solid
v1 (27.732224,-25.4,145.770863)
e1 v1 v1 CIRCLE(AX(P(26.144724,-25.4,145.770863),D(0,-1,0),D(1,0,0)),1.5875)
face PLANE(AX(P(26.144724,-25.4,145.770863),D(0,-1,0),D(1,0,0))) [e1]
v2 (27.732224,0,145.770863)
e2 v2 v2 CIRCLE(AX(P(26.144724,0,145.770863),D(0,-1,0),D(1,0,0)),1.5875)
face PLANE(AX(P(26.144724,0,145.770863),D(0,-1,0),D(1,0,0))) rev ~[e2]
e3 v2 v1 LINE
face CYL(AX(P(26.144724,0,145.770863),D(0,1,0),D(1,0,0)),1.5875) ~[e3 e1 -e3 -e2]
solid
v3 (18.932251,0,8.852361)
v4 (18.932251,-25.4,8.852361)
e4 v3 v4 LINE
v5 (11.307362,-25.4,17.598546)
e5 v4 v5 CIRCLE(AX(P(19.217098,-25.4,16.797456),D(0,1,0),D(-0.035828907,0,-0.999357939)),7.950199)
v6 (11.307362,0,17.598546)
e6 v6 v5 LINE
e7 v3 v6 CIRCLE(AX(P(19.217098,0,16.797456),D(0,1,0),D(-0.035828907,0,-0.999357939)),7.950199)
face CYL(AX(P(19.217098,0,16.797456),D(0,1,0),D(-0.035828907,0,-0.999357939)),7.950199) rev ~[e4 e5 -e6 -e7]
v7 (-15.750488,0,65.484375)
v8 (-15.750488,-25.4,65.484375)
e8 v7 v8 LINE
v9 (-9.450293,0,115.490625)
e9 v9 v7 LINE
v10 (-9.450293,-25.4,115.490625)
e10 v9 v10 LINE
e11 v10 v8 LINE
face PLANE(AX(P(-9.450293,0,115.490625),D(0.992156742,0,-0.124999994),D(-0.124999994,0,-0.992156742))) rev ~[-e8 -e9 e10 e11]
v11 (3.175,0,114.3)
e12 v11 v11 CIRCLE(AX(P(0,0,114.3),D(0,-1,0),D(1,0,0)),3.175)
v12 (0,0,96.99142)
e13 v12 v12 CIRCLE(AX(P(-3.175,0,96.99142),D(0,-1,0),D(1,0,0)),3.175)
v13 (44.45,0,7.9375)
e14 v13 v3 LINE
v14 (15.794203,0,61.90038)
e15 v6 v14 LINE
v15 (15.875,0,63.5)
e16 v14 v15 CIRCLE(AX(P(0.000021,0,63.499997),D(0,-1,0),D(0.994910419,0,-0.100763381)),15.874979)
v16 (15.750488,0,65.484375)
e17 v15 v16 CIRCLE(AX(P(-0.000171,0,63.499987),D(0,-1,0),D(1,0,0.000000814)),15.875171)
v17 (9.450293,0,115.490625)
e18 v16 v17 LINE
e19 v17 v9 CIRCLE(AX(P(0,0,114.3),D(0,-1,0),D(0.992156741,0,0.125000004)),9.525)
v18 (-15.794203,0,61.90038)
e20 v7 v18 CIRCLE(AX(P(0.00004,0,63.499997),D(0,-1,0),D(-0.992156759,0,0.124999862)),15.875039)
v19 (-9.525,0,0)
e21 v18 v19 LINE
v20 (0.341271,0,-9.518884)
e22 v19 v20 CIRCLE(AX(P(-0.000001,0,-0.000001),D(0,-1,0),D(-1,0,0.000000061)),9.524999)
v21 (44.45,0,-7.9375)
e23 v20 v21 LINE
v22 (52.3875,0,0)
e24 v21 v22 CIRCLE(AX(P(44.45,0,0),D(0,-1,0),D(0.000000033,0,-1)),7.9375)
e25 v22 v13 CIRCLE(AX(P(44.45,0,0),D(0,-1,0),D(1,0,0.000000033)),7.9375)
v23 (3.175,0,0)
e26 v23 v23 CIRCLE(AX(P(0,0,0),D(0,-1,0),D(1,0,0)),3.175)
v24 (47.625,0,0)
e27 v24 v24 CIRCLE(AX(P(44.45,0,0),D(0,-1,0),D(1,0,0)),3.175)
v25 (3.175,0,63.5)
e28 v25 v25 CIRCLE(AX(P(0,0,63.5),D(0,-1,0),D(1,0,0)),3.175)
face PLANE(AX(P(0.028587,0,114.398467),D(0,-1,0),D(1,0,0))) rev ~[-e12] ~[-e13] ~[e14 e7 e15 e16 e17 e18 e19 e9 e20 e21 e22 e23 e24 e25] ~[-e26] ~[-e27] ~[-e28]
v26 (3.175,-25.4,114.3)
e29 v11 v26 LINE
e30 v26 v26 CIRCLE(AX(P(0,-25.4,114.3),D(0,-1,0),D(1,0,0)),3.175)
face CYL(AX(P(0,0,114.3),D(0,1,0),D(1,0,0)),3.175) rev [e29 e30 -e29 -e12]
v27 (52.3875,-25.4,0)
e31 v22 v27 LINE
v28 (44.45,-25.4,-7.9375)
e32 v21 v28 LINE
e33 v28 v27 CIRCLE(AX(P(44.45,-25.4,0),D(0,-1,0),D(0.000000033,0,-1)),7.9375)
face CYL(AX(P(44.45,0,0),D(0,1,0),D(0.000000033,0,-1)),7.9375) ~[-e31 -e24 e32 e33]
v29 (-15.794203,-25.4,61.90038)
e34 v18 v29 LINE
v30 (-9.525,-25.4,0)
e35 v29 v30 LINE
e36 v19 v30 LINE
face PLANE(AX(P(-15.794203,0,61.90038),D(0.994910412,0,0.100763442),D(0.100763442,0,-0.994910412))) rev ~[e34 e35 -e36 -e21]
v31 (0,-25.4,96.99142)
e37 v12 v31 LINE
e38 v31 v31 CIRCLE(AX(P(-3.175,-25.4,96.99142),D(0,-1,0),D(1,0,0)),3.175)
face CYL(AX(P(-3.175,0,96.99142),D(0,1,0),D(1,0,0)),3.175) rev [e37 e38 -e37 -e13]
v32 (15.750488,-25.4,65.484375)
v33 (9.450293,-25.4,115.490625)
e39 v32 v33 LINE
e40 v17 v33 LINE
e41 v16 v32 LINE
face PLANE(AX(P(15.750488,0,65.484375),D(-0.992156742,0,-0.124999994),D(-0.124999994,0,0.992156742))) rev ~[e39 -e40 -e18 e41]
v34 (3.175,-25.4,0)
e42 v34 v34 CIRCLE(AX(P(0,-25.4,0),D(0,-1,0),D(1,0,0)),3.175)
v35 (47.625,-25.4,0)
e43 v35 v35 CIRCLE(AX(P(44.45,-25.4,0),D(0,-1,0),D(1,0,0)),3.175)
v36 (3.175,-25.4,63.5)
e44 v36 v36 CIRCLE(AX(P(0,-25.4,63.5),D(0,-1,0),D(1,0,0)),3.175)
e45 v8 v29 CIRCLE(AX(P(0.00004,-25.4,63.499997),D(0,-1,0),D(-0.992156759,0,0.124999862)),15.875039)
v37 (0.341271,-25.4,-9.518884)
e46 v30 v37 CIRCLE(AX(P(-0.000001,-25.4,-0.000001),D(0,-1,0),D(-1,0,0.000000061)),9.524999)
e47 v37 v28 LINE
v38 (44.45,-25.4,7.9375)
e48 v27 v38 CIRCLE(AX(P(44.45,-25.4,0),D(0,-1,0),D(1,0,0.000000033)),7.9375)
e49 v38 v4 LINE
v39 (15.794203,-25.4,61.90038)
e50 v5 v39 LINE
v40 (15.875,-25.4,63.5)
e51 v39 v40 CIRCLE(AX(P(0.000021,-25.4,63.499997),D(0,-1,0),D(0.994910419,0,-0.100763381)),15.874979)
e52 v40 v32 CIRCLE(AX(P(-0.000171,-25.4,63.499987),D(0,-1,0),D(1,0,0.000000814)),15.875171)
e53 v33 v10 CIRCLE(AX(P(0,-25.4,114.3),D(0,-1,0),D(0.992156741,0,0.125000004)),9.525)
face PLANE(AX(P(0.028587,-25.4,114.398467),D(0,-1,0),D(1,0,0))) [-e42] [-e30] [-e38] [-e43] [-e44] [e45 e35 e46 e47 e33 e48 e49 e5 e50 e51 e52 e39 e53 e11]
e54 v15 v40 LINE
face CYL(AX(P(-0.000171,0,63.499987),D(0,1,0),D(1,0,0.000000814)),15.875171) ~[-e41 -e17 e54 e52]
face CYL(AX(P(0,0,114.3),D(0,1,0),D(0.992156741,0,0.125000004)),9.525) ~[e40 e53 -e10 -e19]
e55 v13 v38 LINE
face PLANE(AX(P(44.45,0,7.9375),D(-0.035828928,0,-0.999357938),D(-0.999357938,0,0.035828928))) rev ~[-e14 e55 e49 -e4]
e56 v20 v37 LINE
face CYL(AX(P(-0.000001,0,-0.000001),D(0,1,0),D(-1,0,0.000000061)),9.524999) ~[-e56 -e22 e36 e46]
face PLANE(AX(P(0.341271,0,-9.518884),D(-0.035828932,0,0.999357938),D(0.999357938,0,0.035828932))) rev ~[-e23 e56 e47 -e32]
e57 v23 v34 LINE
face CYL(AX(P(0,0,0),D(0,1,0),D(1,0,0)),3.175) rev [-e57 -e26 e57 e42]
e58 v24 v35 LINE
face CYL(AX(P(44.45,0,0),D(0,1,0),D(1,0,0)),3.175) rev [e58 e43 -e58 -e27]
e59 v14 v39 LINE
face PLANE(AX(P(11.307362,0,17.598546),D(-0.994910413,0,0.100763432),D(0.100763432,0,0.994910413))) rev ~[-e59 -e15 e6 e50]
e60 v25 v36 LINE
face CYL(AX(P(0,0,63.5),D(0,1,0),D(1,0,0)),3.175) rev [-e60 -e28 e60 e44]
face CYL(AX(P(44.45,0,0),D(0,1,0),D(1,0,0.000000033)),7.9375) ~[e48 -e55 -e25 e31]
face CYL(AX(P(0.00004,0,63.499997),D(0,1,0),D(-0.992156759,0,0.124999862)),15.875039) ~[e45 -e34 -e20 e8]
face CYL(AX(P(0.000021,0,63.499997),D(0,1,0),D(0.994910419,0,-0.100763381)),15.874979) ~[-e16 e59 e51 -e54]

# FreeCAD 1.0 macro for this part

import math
import FreeCAD as App
import Part
import Sketcher
from FreeCAD import Vector
Q = App.Units.Quantity

doc = App.newDocument("Part")
body = doc.addObject("PartDesign::Body", "Body")
body.AllowCompound = True

# Sketch on XZ plane
sketch1 = body.newObject("Sketcher::SketchObject", "Sketch")
sketch1.AttachmentSupport = (doc.getObject("XZ_Plane"), [""])
sketch1.MapMode = "FlatFace"
sketch1.addGeometry([
    Part.ArcOfCircle(Part.Circle(Vector(0, 114.3, 0), Vector(0, 0, 1), 9.525), math.radians(7.180756), math.radians(172.819244)),  # 0
    Part.LineSegment(Vector(-9.450293, 115.490625, 0), Vector(-15.750488, 65.484375, 0)),  # 1
    Part.ArcOfCircle(Part.Circle(Vector(0.00004, 63.499997, 0), Vector(0, 0, 1), 15.875039), math.radians(172.819252), math.radians(185.783112)),  # 2
    Part.LineSegment(Vector(-15.794203, 61.90038, 0), Vector(-9.525, 0, 0)),  # 3
    Part.ArcOfCircle(Part.Circle(Vector(-0.000001, -0.000001, 0), Vector(0, 0, 1), 9.524999), math.radians(179.999996), math.radians(272.053294)),  # 4
    Part.LineSegment(Vector(0.341271, -9.518884, 0), Vector(44.45, -7.9375, 0)),  # 5
    Part.ArcOfCircle(Part.Circle(Vector(44.45, 0, 0), Vector(0, 0, 1), 7.9375), math.radians(-89.999998), math.radians(-0.000002)),  # 6
    Part.ArcOfCircle(Part.Circle(Vector(44.45, 0, 0), Vector(0, 0, 1), 7.9375), math.radians(0.000002), math.radians(89.999998)),  # 7
    Part.LineSegment(Vector(44.45, 7.9375, 0), Vector(18.932251, 8.852361, 0)),  # 8
    Part.ArcOfCircle(Part.Circle(Vector(19.217098, 16.797456, 0), Vector(0, 0, 1), 7.950199), math.radians(174.21686), math.radians(267.946715)),  # 9
    Part.LineSegment(Vector(11.307362, 17.598546, 0), Vector(15.794203, 61.90038, 0)),  # 10
    Part.ArcOfCircle(Part.Circle(Vector(0.000021, 63.499997, 0), Vector(0, 0, 1), 15.874979), math.radians(-5.783131), math.radians(0.000012)),  # 11
    Part.ArcOfCircle(Part.Circle(Vector(-0.000171, 63.499987, 0), Vector(0, 0, 1), 15.875171), math.radians(0.000047), math.radians(7.180725)),  # 12
    Part.LineSegment(Vector(15.750488, 65.484375, 0), Vector(9.450293, 115.490625, 0)),  # 13
    Part.Circle(Vector(0, 0, 0), Vector(0, 0, 1), 3.175),  # 14
    Part.Circle(Vector(44.45, 0, 0), Vector(0, 0, 1), 3.175),  # 15
    Part.Circle(Vector(0, 63.5, 0), Vector(0, 0, 1), 3.175),  # 16
    Part.Circle(Vector(-3.175, 96.99142, 0), Vector(0, 0, 1), 3.175),  # 17
    Part.Circle(Vector(0, 114.3, 0), Vector(0, 0, 1), 3.175),  # 18
    Part.Circle(Vector(26.144724, 145.770863, 0), Vector(0, 0, 1), 1.5875),  # 19
], False)
sketch1.addConstraint([
    Sketcher.Constraint("Coincident", 0, 2, 1, 1),
    Sketcher.Constraint("Coincident", 1, 2, 2, 1),
    Sketcher.Constraint("Coincident", 2, 2, 3, 1),
    Sketcher.Constraint("Coincident", 3, 2, 4, 1),
    Sketcher.Constraint("Coincident", 4, 2, 5, 1),
    Sketcher.Constraint("Coincident", 5, 2, 6, 1),
    Sketcher.Constraint("Coincident", 6, 2, 7, 1),
    Sketcher.Constraint("Coincident", 7, 2, 8, 1),
    Sketcher.Constraint("Coincident", 8, 2, 9, 2),
    Sketcher.Constraint("Coincident", 9, 1, 10, 1),
    Sketcher.Constraint("Coincident", 10, 2, 11, 1),
    Sketcher.Constraint("Coincident", 11, 2, 12, 1),
    Sketcher.Constraint("Coincident", 12, 2, 13, 1),
    Sketcher.Constraint("Coincident", 13, 2, 0, 1),
    Sketcher.Constraint("Coincident", 4, 3, -1, 1),
    Sketcher.Constraint("Coincident", 14, 3, -1, 1),
    Sketcher.Constraint("Coincident", 7, 3, 6, 3),
    Sketcher.Constraint("Coincident", 15, 3, 6, 3),
    Sketcher.Constraint("Coincident", 18, 3, 0, 3),
    Sketcher.Constraint("PointOnObject", 0, 3, -2),
    Sketcher.Constraint("PointOnObject", 6, 3, -1),
    Sketcher.Constraint("PointOnObject", 16, 3, -2),
    Sketcher.Constraint("PointOnObject", 3, 2, -1),
    Sketcher.Constraint("PointOnObject", 6, 2, -1),
    Sketcher.Constraint("Diameter", 14, Q("0.25 in")),
    Sketcher.Constraint("Diameter", 15, Q("0.25 in")),
    Sketcher.Constraint("Diameter", 16, Q("0.25 in")),
    Sketcher.Constraint("Diameter", 17, Q("0.25 in")),
    Sketcher.Constraint("Diameter", 18, Q("0.25 in")),
    Sketcher.Constraint("Diameter", 19, Q("0.125 in")),
    Sketcher.Constraint("Radius", 0, Q("0.375 in")),
    Sketcher.Constraint("Radius", 4, Q("0.375 in")),
    Sketcher.Constraint("Radius", 6, Q("0.3125 in")),
    Sketcher.Constraint("Radius", 9, Q("0.313 in")),
    Sketcher.Constraint("DistanceY", 2, 3, 0, 3, Q("2.0000001 in")),
    Sketcher.Constraint("DistanceY", 11, 3, 0, 3, Q("2.0000001 in")),
    Sketcher.Constraint("DistanceY", 16, 3, 0, 3, Q("2 in")),
    Sketcher.Constraint("DistanceY", -1, 1, 0, 3, Q("4.5 in")),
    Sketcher.Constraint("DistanceY", -1, 1, 11, 2, Q("2.5 in")),
    Sketcher.Constraint("DistanceX", -1, 1, 6, 3, Q("1.75 in")),
    Sketcher.Constraint("DistanceX", -1, 1, 5, 2, Q("1.75 in")),
    Sketcher.Constraint("DistanceX", -1, 1, 7, 2, Q("1.75 in")),
    Sketcher.Constraint("DistanceX", 17, 3, -1, 1, Q("0.125 in")),
    Sketcher.Constraint("DistanceY", -1, 1, 0, 2, Q("4.546875 in")),
    Sketcher.Constraint("DistanceY", -1, 1, 1, 2, Q("2.578125 in")),
    Sketcher.Constraint("DistanceX", -1, 1, 11, 2, Q("0.625 in")),
    Sketcher.Constraint("DistanceY", -1, 1, 12, 2, Q("2.578125 in")),
    Sketcher.Constraint("DistanceY", -1, 1, 13, 2, Q("4.546875 in")),
    Sketcher.Constraint("Radius", 2, Q("15.875039 mm")),
    Sketcher.Constraint("Radius", 11, Q("15.874979 mm")),
    Sketcher.Constraint("Radius", 12, Q("15.875171 mm")),
    Sketcher.Constraint("DistanceX", 4, 3, 9, 3, Q("19.217099 mm")),
    Sketcher.Constraint("Distance", 3, Q("62.217039 mm")),
    Sketcher.Constraint("DistanceY", -1, 1, 17, 3, Q("96.99142 mm")),
    Sketcher.Constraint("DistanceX", 1, 2, -1, 1, Q("15.750488 mm")),
    Sketcher.Constraint("DistanceX", -1, 1, 4, 2, Q("0.341271 mm")),
    Sketcher.Constraint("DistanceX", -1, 1, 8, 2, Q("18.932251 mm")),
    Sketcher.Constraint("DistanceY", -1, 1, 8, 2, Q("8.852361 mm")),
    Sketcher.Constraint("DistanceX", -1, 1, 9, 1, Q("11.307362 mm")),
    Sketcher.Constraint("DistanceY", -1, 1, 10, 2, Q("61.90038 mm")),
    Sketcher.Constraint("DistanceX", -1, 1, 12, 2, Q("15.750488 mm")),
    Sketcher.Constraint("DistanceX", 13, 2, 19, 3, Q("16.694431 mm")),
    Sketcher.Constraint("DistanceY", -1, 1, 19, 3, Q("145.770863 mm")),
])
pad1 = body.newObject("PartDesign::Pad", "Pad")
pad1.Profile = sketch1
pad1.Length = Q("1 in")

doc.recompute()
